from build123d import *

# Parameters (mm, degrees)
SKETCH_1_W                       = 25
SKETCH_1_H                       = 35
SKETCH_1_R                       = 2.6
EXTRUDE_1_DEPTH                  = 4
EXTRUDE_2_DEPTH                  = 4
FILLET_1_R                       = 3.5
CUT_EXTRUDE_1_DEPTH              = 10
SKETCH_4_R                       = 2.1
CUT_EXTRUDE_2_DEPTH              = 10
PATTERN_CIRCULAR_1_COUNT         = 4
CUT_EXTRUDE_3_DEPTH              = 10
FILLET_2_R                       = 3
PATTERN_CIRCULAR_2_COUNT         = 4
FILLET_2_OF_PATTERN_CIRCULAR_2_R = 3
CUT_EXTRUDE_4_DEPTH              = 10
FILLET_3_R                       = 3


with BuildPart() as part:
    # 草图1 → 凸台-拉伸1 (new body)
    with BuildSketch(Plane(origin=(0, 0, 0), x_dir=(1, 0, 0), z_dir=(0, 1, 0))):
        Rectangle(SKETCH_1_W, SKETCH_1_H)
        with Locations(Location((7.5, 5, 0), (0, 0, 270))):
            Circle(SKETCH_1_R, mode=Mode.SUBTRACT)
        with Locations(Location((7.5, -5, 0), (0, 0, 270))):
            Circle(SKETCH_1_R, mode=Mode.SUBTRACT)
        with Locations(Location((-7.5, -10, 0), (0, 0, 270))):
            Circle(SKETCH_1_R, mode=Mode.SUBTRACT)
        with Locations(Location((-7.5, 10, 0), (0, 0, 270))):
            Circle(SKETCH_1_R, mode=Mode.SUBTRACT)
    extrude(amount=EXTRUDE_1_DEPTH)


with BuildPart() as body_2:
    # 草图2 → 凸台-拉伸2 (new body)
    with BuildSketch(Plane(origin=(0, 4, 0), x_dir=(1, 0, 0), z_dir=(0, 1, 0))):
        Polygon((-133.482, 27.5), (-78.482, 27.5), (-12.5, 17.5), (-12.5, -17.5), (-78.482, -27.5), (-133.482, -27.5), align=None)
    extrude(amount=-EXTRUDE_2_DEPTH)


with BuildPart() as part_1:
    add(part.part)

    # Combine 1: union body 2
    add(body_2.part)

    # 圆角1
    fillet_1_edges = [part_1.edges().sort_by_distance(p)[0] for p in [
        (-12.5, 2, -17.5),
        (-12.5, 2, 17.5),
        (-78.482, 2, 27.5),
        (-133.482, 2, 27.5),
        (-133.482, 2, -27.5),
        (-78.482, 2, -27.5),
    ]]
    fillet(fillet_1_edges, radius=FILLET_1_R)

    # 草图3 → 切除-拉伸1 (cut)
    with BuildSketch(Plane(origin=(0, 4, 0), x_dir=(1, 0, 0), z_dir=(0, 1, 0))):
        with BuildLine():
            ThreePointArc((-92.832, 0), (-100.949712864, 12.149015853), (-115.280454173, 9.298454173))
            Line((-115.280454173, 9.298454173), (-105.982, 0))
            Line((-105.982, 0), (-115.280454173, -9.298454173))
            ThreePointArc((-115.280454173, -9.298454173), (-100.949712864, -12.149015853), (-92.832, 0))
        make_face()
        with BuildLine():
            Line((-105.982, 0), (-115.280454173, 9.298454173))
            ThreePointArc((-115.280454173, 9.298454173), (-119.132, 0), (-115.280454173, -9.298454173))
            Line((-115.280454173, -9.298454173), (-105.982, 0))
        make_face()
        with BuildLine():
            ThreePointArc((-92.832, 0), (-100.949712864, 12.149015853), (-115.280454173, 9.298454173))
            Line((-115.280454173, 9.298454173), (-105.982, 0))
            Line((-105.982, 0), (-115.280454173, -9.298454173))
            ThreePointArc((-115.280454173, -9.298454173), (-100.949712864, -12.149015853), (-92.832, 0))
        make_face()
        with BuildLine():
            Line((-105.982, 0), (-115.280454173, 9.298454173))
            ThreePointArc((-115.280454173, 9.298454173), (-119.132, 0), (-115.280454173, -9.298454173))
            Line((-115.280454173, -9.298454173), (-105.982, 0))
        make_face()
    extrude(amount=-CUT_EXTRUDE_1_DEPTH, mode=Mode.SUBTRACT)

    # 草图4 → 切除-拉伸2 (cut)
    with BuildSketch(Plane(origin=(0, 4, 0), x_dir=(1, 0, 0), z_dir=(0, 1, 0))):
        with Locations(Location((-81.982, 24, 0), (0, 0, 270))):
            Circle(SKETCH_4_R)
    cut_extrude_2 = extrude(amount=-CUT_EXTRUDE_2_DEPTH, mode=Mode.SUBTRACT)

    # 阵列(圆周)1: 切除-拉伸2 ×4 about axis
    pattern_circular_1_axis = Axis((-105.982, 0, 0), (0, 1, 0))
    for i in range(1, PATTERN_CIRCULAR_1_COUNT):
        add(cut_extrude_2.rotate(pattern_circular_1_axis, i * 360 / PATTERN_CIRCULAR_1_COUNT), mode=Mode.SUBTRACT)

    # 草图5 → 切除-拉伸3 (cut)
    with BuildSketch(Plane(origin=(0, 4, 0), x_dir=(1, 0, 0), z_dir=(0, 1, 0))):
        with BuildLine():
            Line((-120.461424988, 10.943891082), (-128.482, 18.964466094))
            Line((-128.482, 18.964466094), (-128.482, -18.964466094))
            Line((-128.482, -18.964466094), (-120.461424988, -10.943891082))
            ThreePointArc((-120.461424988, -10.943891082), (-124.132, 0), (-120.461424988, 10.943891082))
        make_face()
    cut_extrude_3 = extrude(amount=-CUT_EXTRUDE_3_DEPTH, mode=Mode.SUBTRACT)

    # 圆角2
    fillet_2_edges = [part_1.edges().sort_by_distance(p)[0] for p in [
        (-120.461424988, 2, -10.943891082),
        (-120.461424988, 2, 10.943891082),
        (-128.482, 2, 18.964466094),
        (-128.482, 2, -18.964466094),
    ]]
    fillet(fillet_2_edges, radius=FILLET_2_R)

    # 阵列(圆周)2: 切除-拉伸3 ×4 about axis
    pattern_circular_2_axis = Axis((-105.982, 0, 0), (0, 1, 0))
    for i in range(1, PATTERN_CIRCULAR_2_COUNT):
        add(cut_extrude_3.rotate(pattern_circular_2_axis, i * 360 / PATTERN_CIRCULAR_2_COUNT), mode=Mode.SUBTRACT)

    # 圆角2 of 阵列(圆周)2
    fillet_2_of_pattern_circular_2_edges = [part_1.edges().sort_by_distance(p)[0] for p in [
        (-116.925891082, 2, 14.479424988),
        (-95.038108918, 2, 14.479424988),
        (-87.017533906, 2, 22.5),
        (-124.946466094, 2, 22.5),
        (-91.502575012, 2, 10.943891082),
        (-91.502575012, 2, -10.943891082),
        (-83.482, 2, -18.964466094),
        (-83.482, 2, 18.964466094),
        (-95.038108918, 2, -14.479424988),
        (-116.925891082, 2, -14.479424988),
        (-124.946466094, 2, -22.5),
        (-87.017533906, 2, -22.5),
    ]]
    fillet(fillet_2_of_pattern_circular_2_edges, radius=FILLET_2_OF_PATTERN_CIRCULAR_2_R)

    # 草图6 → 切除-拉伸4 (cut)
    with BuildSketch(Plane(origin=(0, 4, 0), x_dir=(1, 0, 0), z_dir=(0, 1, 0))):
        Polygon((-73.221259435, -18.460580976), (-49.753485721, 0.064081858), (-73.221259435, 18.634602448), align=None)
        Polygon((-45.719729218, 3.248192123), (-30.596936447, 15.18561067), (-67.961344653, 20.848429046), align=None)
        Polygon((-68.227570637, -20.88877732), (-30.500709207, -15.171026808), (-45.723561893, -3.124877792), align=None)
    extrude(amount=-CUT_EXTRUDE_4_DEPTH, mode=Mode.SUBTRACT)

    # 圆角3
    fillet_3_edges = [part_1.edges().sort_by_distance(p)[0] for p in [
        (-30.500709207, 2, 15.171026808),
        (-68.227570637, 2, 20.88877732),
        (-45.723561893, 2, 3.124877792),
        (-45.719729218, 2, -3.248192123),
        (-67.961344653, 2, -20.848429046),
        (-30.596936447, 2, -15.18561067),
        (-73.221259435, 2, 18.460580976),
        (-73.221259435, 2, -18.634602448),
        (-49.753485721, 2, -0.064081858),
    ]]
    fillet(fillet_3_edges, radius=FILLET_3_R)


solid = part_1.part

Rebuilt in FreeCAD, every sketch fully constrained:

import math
import FreeCAD as App
import Part
import Sketcher


def edges_at(feature, points):
    """Names of the edges that pass closest to the given points."""
    edges = feature.Shape.Edges
    near = lambda p: min(range(len(edges)), key=lambda i: edges[i].distToShape(Part.Vertex(*p))[0])
    return sorted({f"Edge{near(p) + 1}" for p in points})

doc = App.newDocument("Part")
params = doc.addObject("Spreadsheet::Sheet", "Params")
for row, (alias, value) in enumerate([
    ("sketch1_diameter", "5.2 mm"),
    ("sketch1_width", "25 mm"),
    ("sketch1_height", "35 mm"),
    ("pad1_length", "4 mm"),
    ("sketch2_width", "55 mm"),
    ("sketch2_height", "35 mm"),
    ("pad2_length", "4 mm"),
    ("fillet_radius", "3.5 mm"),
    ("sketch3_radius", "13.15 mm"),
    ("pocket1_length", "10 mm"),
    ("sketch4_diameter", "4.2 mm"),
    ("pocket2_length", "10 mm"),
    ("sketch5_radius", "18.15 mm"),
    ("pocket3_length", "10 mm"),
    ("fillet2_radius", "3 mm"),
    ("fillet3_radius", "3 mm"),
    ("pocket4_length", "10 mm"),
    ("fillet4_radius", "3 mm"),
], start=1):
    params.set(f"A{row}", alias)
    params.set(f"B{row}", "=" + value)
    params.setAlias(f"B{row}", alias)

body = doc.addObject("PartDesign::Body", "Body")

# Sketch on XZ plane
sketch1 = doc.addObject("Sketcher::SketchObject", "Sketch")
body.addObject(sketch1)
sketch1.AttachmentSupport = (doc.XZ_Plane, [""])
sketch1.MapMode = "FlatFace"
sketch1.addGeometry(Part.LineSegment(App.Vector(-12.5, -17.5, 0), App.Vector(-12.5, 17.5, 0)), False)
sketch1.addGeometry(Part.LineSegment(App.Vector(-12.5, 17.5, 0), App.Vector(12.5, 17.5, 0)), False)
sketch1.addGeometry(Part.LineSegment(App.Vector(12.5, 17.5, 0), App.Vector(12.5, -17.5, 0)), False)
sketch1.addGeometry(Part.LineSegment(App.Vector(12.5, -17.5, 0), App.Vector(-12.5, -17.5, 0)), False)
sketch1.addGeometry(Part.Circle(App.Vector(-7.5, 10, 0), App.Vector(0, 0, 1), 2.6), False)
sketch1.addGeometry(Part.Circle(App.Vector(7.5, 5, 0), App.Vector(0, 0, 1), 2.6), False)
sketch1.addGeometry(Part.Circle(App.Vector(-7.5, -10, 0), App.Vector(0, 0, 1), 2.6), False)
sketch1.addGeometry(Part.Circle(App.Vector(7.5, -5, 0), App.Vector(0, 0, 1), 2.6), False)
sketch1.addConstraint(Sketcher.Constraint("Coincident", 0, 2, 1, 1))
sketch1.addConstraint(Sketcher.Constraint("Coincident", 1, 2, 2, 1))
sketch1.addConstraint(Sketcher.Constraint("Coincident", 2, 2, 3, 1))
sketch1.addConstraint(Sketcher.Constraint("Coincident", 3, 2, 0, 1))
sketch1.addConstraint(Sketcher.Constraint("Vertical", 0))
sketch1.addConstraint(Sketcher.Constraint("Horizontal", 1))
sketch1.addConstraint(Sketcher.Constraint("Vertical", 2))
sketch1.addConstraint(Sketcher.Constraint("Horizontal", 3))
sketch1.addConstraint(Sketcher.Constraint("Equal", 4, 5))
sketch1.addConstraint(Sketcher.Constraint("Equal", 5, 6))
sketch1.addConstraint(Sketcher.Constraint("Equal", 6, 7))
sketch1.addConstraint(Sketcher.Constraint("Symmetric", 0, 2, 2, 2, -1, 1))
sketch1.addConstraint(Sketcher.Constraint("Symmetric", 4, 3, 6, 3, -1))
sketch1.addConstraint(Sketcher.Constraint("Symmetric", 5, 3, 7, 3, -1))
sketch1.addConstraint(Sketcher.Constraint("Diameter", 4, 5.2))
sketch1.addConstraint(Sketcher.Constraint("DistanceX", 1, 1, 1, 2, 25.0))
sketch1.addConstraint(Sketcher.Constraint("DistanceY", 0, 1, 0, 2, 35.0))
sketch1.addConstraint(Sketcher.Constraint("DistanceY", -1, 1, 4, 3, 10.0))
sketch1.addConstraint(Sketcher.Constraint("DistanceY", -1, 1, 5, 3, 5.0))
sketch1.addConstraint(Sketcher.Constraint("DistanceX", 4, 3, 5, 3, 15.0))
sketch1.addConstraint(Sketcher.Constraint("DistanceX", 0, 2, 4, 3, 5.0))
sketch1.setExpression("Constraints[14]", "Params.sketch1_diameter")
sketch1.setExpression("Constraints[15]", "Params.sketch1_width")
sketch1.setExpression("Constraints[16]", "Params.sketch1_height")
pad1 = doc.addObject("PartDesign::Pad", "Pad")
body.addObject(pad1)
pad1.Profile = sketch1
pad1.setExpression("Length", "Params.pad1_length")
pad1.Reversed = True
body2 = doc.addObject("PartDesign::Body", "Body001")

# Sketch on XZ plane
sketch2 = doc.addObject("Sketcher::SketchObject", "Sketch001")
body2.addObject(sketch2)
sketch2.AttachmentSupport = (doc.getObject("XZ_Plane001"), [""])
sketch2.MapMode = "FlatFace"
sketch2.AttachmentOffset = App.Placement(App.Vector(0, 0, -4), App.Rotation())
sketch2.addGeometry(Part.LineSegment(App.Vector(-78.482, -27.5, 0), App.Vector(-133.482, -27.5, 0)), False)
sketch2.addGeometry(Part.LineSegment(App.Vector(-133.482, -27.5, 0), App.Vector(-133.482, 27.5, 0)), False)
sketch2.addGeometry(Part.LineSegment(App.Vector(-133.482, 27.5, 0), App.Vector(-78.482, 27.5, 0)), False)
sketch2.addGeometry(Part.LineSegment(App.Vector(-78.482, 27.5, 0), App.Vector(-12.5, 17.5, 0)), False)
sketch2.addGeometry(Part.LineSegment(App.Vector(-12.5, 17.5, 0), App.Vector(-12.5, -17.5, 0)), False)
sketch2.addGeometry(Part.LineSegment(App.Vector(-12.5, -17.5, 0), App.Vector(-78.482, -27.5, 0)), False)
sketch2.addConstraint(Sketcher.Constraint("Coincident", 0, 2, 1, 1))
sketch2.addConstraint(Sketcher.Constraint("Coincident", 1, 2, 2, 1))
sketch2.addConstraint(Sketcher.Constraint("Coincident", 2, 2, 3, 1))
sketch2.addConstraint(Sketcher.Constraint("Coincident", 3, 2, 4, 1))
sketch2.addConstraint(Sketcher.Constraint("Coincident", 4, 2, 5, 1))
sketch2.addConstraint(Sketcher.Constraint("Coincident", 5, 2, 0, 1))
sketch2.addConstraint(Sketcher.Constraint("Horizontal", 0))
sketch2.addConstraint(Sketcher.Constraint("Vertical", 1))
sketch2.addConstraint(Sketcher.Constraint("Horizontal", 2))
sketch2.addConstraint(Sketcher.Constraint("Vertical", 4))
sketch2.addConstraint(Sketcher.Constraint("Symmetric", 2, 2, 5, 2, -1))
sketch2.addConstraint(Sketcher.Constraint("Equal", 2, 1))
sketch2.addConstraint(Sketcher.Constraint("Equal", 3, 5))
sketch2.addConstraint(Sketcher.Constraint("DistanceX", 0, 2, 0, 1, 55.0))
sketch2.addConstraint(Sketcher.Constraint("DistanceY", 4, 2, 4, 1, 35.0))
sketch2.addConstraint(Sketcher.Constraint("DistanceX", 3, 2, -1, 1, 12.5))
sketch2.addConstraint(Sketcher.Constraint("DistanceX", 0, 2, -1, 1, 133.482))
sketch2.setExpression("Constraints[13]", "Params.sketch2_width")
sketch2.setExpression("Constraints[14]", "Params.sketch2_height")
pad2 = doc.addObject("PartDesign::Pad", "Pad001")
body2.addObject(pad2)
pad2.Profile = sketch2
pad2.setExpression("Length", "Params.pad2_length")
doc.recompute()

boolean = doc.addObject("PartDesign::Boolean", "Boolean")
body.addObject(boolean)
boolean.Type = "Fuse"
boolean.addObjects([body2])
doc.recompute()

fillet = doc.addObject("PartDesign::Fillet", "Fillet")
body.addObject(fillet)
fillet.Base = (boolean, edges_at(boolean, [
    (-12.5, 2, -17.5),
    (-12.5, 2, 17.5),
    (-78.482, 2, 27.5),
    (-133.482, 2, 27.5),
    (-133.482, 2, -27.5),
    (-78.482, 2, -27.5),
]))
fillet.setExpression("Radius", "Params.fillet_radius")

# Sketch on XZ plane
sketch3 = doc.addObject("Sketcher::SketchObject", "Sketch002")
body.addObject(sketch3)
sketch3.AttachmentSupport = (doc.XZ_Plane, [""])
sketch3.MapMode = "FlatFace"
sketch3.AttachmentOffset = App.Placement(App.Vector(0, 0, -4), App.Rotation())
sketch3.addGeometry(Part.ArcOfCircle(Part.Circle(App.Vector(-105.982, 0, 0), App.Vector(0, 0, 1), 13.15), math.radians(-135), math.radians(0)), False)
sketch3.addGeometry(Part.ArcOfCircle(Part.Circle(App.Vector(-105.982, 0, 0), App.Vector(0, 0, 1), 13.15), math.radians(135), math.radians(225)), False)
sketch3.addGeometry(Part.ArcOfCircle(Part.Circle(App.Vector(-105.982, 0, 0), App.Vector(0, 0, 1), 13.15), math.radians(0), math.radians(135)), False)
sketch3.addConstraint(Sketcher.Constraint("Tangent", 0, 1, 1, 2))
sketch3.addConstraint(Sketcher.Constraint("Tangent", 1, 1, 2, 2))
sketch3.addConstraint(Sketcher.Constraint("Tangent", 2, 1, 0, 2))
sketch3.addConstraint(Sketcher.Constraint("Symmetric", 0, 1, 1, 1, -1))
sketch3.addConstraint(Sketcher.Constraint("PointOnObject", 2, 1, -1))
sketch3.addConstraint(Sketcher.Constraint("Radius", 0, 13.15))
sketch3.addConstraint(Sketcher.Constraint("DistanceX", 0, 3, -1, 1, 105.982))
sketch3.addConstraint(Sketcher.Constraint("DistanceY", 0, 1, 1, 1, 18.596908))
sketch3.setExpression("Constraints[5]", "Params.sketch3_radius")
pocket1 = doc.addObject("PartDesign::Pocket", "Pocket")
body.addObject(pocket1)
pocket1.Profile = sketch3
pocket1.setExpression("Length", "Params.pocket1_length")
pocket1.Reversed = True

# Sketch on XZ plane
sketch4 = doc.addObject("Sketcher::SketchObject", "Sketch003")
body.addObject(sketch4)
sketch4.AttachmentSupport = (doc.XZ_Plane, [""])
sketch4.MapMode = "FlatFace"
sketch4.AttachmentOffset = App.Placement(App.Vector(0, 0, -4), App.Rotation())
sketch4.addGeometry(Part.Circle(App.Vector(-81.982, -24, 0), App.Vector(0, 0, 1), 2.1), False)
sketch4.addConstraint(Sketcher.Constraint("Diameter", 0, 4.2))
sketch4.addConstraint(Sketcher.Constraint("DistanceY", 0, 3, -1, 1, 24.0))
sketch4.addConstraint(Sketcher.Constraint("DistanceX", 0, 3, -1, 1, 81.982))
sketch4.setExpression("Constraints[0]", "Params.sketch4_diameter")
pocket2 = doc.addObject("PartDesign::Pocket", "Pocket001")
body.addObject(pocket2)
pocket2.Profile = sketch4
pocket2.setExpression("Length", "Params.pocket2_length")
pocket2.Reversed = True
doc.recompute()

datumline = doc.addObject("PartDesign::Line", "DatumLine")
body.addObject(datumline)
datumline.Placement = App.Placement(App.Vector(-105.982, 0, 0), App.Rotation(App.Vector(0, 0, 1), App.Vector(0, 1, 0)))
polarpattern = doc.addObject("PartDesign::PolarPattern", "PolarPattern")
body.addObject(polarpattern)
polarpattern.Originals = [pocket2]
polarpattern.Axis = (datumline, [""])
polarpattern.Angle = 360
polarpattern.Occurrences = 4
body.Tip = polarpattern

# Sketch on XZ plane
sketch5 = doc.addObject("Sketcher::SketchObject", "Sketch004")
body.addObject(sketch5)
sketch5.AttachmentSupport = (doc.XZ_Plane, [""])
sketch5.MapMode = "FlatFace"
sketch5.AttachmentOffset = App.Placement(App.Vector(0, 0, -4), App.Rotation())
sketch5.addGeometry(Part.LineSegment(App.Vector(-120.461425, -10.943891, 0), App.Vector(-128.482, -18.964466, 0)), False)
sketch5.addGeometry(Part.LineSegment(App.Vector(-128.482, -18.964466, 0), App.Vector(-128.482, 18.964466, 0)), False)
sketch5.addGeometry(Part.LineSegment(App.Vector(-128.482, 18.964466, 0), App.Vector(-120.461425, 10.943891, 0)), False)
sketch5.addGeometry(Part.ArcOfCircle(Part.Circle(App.Vector(-105.982, 0, 0), App.Vector(0, 0, 1), 18.15), math.radians(142.917151), math.radians(217.082849)), False)
sketch5.addConstraint(Sketcher.Constraint("Coincident", 0, 2, 1, 1))
sketch5.addConstraint(Sketcher.Constraint("Coincident", 1, 2, 2, 1))
sketch5.addConstraint(Sketcher.Constraint("Coincident", 2, 2, 3, 1))
sketch5.addConstraint(Sketcher.Constraint("Coincident", 3, 2, 0, 1))
sketch5.addConstraint(Sketcher.Constraint("Vertical", 1))
sketch5.addConstraint(Sketcher.Constraint("Symmetric", 2, 2, 3, 2, -1))
sketch5.addConstraint(Sketcher.Constraint("Perpendicular", 0, 2))
sketch5.addConstraint(Sketcher.Constraint("Equal", 0, 2))
sketch5.addConstraint(Sketcher.Constraint("Radius", 3, 18.15))
sketch5.addConstraint(Sketcher.Constraint("DistanceX", 0, 2, 3, 3, 22.5))
sketch5.addConstraint(Sketcher.Constraint("DistanceX", 3, 3, -1, 1, 105.982))
sketch5.addConstraint(Sketcher.Constraint("DistanceY", 1, 1, 1, 2, 37.928932))
sketch5.setExpression("Constraints[8]", "Params.sketch5_radius")
pocket3 = doc.addObject("PartDesign::Pocket", "Pocket002")
body.addObject(pocket3)
pocket3.Profile = sketch5
pocket3.setExpression("Length", "Params.pocket3_length")
pocket3.Reversed = True
doc.recompute()

fillet2 = doc.addObject("PartDesign::Fillet", "Fillet001")
body.addObject(fillet2)
fillet2.Base = (pocket3, edges_at(pocket3, [
    (-120.461, 2, -10.944),
    (-120.461, 2, 10.944),
    (-128.482, 2, 18.964),
    (-128.482, 2, -18.964),
]))
fillet2.setExpression("Radius", "Params.fillet2_radius")
doc.recompute()

datumline2 = doc.addObject("PartDesign::Line", "DatumLine001")
body.addObject(datumline2)
datumline2.Placement = App.Placement(App.Vector(-105.982, 0, 0), App.Rotation(App.Vector(0, 0, 1), App.Vector(0, 1, 0)))
polarpattern2 = doc.addObject("PartDesign::PolarPattern", "PolarPattern001")
body.addObject(polarpattern2)
polarpattern2.Originals = [pocket3]
polarpattern2.Axis = (datumline2, [""])
polarpattern2.Angle = 360
polarpattern2.Occurrences = 4
body.Tip = polarpattern2
doc.recompute()

fillet3 = doc.addObject("PartDesign::Fillet", "Fillet002")
body.addObject(fillet3)
fillet3.Base = (polarpattern2, edges_at(polarpattern2, [
    (-116.926, 2, 14.479),
    (-95.038, 2, 14.479),
    (-87.018, 2, 22.5),
    (-124.946, 2, 22.5),
    (-91.503, 2, 10.944),
    (-91.503, 2, -10.944),
    (-83.482, 2, -18.964),
    (-83.482, 2, 18.964),
    (-95.038, 2, -14.479),
    (-116.926, 2, -14.479),
    (-124.946, 2, -22.5),
    (-87.018, 2, -22.5),
]))
fillet3.setExpression("Radius", "Params.fillet3_radius")

# Sketch on XZ plane
sketch6 = doc.addObject("Sketcher::SketchObject", "Sketch005")
body.addObject(sketch6)
sketch6.AttachmentSupport = (doc.XZ_Plane, [""])
sketch6.MapMode = "FlatFace"
sketch6.AttachmentOffset = App.Placement(App.Vector(0, 0, -4), App.Rotation())
sketch6.addGeometry(Part.LineSegment(App.Vector(-73.221259, 18.460581, 0), App.Vector(-49.753486, -0.064082, 0)), False)
sketch6.addGeometry(Part.LineSegment(App.Vector(-49.753486, -0.064082, 0), App.Vector(-73.221259, -18.634602, 0)), False)
sketch6.addGeometry(Part.LineSegment(App.Vector(-73.221259, -18.634602, 0), App.Vector(-73.221259, 18.460581, 0)), False)
sketch6.addGeometry(Part.LineSegment(App.Vector(-45.719729, -3.248192, 0), App.Vector(-30.596936, -15.185611, 0)), False)
sketch6.addGeometry(Part.LineSegment(App.Vector(-30.596936, -15.185611, 0), App.Vector(-67.961345, -20.848429, 0)), False)
sketch6.addGeometry(Part.LineSegment(App.Vector(-67.961345, -20.848429, 0), App.Vector(-45.719729, -3.248192, 0)), False)
sketch6.addGeometry(Part.LineSegment(App.Vector(-68.227571, 20.888777, 0), App.Vector(-30.500709, 15.171027, 0)), False)
sketch6.addGeometry(Part.LineSegment(App.Vector(-30.500709, 15.171027, 0), App.Vector(-45.723562, 3.124878, 0)), False)
sketch6.addGeometry(Part.LineSegment(App.Vector(-45.723562, 3.124878, 0), App.Vector(-68.227571, 20.888777, 0)), False)
sketch6.addConstraint(Sketcher.Constraint("Coincident", 0, 2, 1, 1))
sketch6.addConstraint(Sketcher.Constraint("Coincident", 1, 2, 2, 1))
sketch6.addConstraint(Sketcher.Constraint("Coincident", 2, 2, 0, 1))
sketch6.addConstraint(Sketcher.Constraint("Coincident", 3, 2, 4, 1))
sketch6.addConstraint(Sketcher.Constraint("Coincident", 4, 2, 5, 1))
sketch6.addConstraint(Sketcher.Constraint("Coincident", 5, 2, 3, 1))
sketch6.addConstraint(Sketcher.Constraint("Coincident", 6, 2, 7, 1))
sketch6.addConstraint(Sketcher.Constraint("Coincident", 7, 2, 8, 1))
sketch6.addConstraint(Sketcher.Constraint("Coincident", 8, 2, 6, 1))
sketch6.addConstraint(Sketcher.Constraint("Vertical", 2))
sketch6.addConstraint(Sketcher.Constraint("Parallel", 0, 3))
sketch6.addConstraint(Sketcher.Constraint("Parallel", 1, 5))
sketch6.addConstraint(Sketcher.Constraint("Parallel", 5, 7))
sketch6.addConstraint(Sketcher.Constraint("Parallel", 3, 8))
sketch6.addConstraint(Sketcher.Constraint("DistanceY", 7, 2, 8, 2, 17.7639))
sketch6.addConstraint(Sketcher.Constraint("Distance", 4, 37.79109))
sketch6.addConstraint(Sketcher.Constraint("DistanceY", 2, 1, 2, 2, 37.095183))
sketch6.addConstraint(Sketcher.Constraint("DistanceY", 0, 2, -1, 1, 0.064082))
sketch6.addConstraint(Sketcher.Constraint("DistanceX", 1, 2, -1, 1, 73.221259))
sketch6.addConstraint(Sketcher.Constraint("DistanceY", -1, 1, 2, 2, 18.460581))
sketch6.addConstraint(Sketcher.Constraint("DistanceY", 3, 2, -1, 1, 15.185611))
sketch6.addConstraint(Sketcher.Constraint("DistanceY", 4, 2, -1, 1, 20.848429))
sketch6.addConstraint(Sketcher.Constraint("DistanceX", 5, 2, -1, 1, 45.719729))
sketch6.addConstraint(Sketcher.Constraint("DistanceX", 6, 2, -1, 1, 30.500709))
sketch6.addConstraint(Sketcher.Constraint("DistanceX", 7, 2, -1, 1, 45.723562))
sketch6.addConstraint(Sketcher.Constraint("DistanceX", 8, 2, -1, 1, 68.227571))
sketch6.addConstraint(Sketcher.Constraint("DistanceY", 5, 2, 6, 2, 18.419219))
pocket4 = doc.addObject("PartDesign::Pocket", "Pocket003")
body.addObject(pocket4)
pocket4.Profile = sketch6
pocket4.setExpression("Length", "Params.pocket4_length")
pocket4.Reversed = True
doc.recompute()

fillet4 = doc.addObject("PartDesign::Fillet", "Fillet003")
body.addObject(fillet4)
fillet4.Base = (pocket4, edges_at(pocket4, [
    (-30.501, 2, 15.171),
    (-68.228, 2, 20.889),
    (-45.724, 2, 3.125),
    (-45.72, 2, -3.248),
    (-67.961, 2, -20.848),
    (-30.597, 2, -15.186),
    (-73.221, 2, 18.461),
    (-73.221, 2, -18.635),
    (-49.753, 2, -0.064),
]))
fillet4.setExpression("Radius", "Params.fillet4_radius")

doc.recompute()
